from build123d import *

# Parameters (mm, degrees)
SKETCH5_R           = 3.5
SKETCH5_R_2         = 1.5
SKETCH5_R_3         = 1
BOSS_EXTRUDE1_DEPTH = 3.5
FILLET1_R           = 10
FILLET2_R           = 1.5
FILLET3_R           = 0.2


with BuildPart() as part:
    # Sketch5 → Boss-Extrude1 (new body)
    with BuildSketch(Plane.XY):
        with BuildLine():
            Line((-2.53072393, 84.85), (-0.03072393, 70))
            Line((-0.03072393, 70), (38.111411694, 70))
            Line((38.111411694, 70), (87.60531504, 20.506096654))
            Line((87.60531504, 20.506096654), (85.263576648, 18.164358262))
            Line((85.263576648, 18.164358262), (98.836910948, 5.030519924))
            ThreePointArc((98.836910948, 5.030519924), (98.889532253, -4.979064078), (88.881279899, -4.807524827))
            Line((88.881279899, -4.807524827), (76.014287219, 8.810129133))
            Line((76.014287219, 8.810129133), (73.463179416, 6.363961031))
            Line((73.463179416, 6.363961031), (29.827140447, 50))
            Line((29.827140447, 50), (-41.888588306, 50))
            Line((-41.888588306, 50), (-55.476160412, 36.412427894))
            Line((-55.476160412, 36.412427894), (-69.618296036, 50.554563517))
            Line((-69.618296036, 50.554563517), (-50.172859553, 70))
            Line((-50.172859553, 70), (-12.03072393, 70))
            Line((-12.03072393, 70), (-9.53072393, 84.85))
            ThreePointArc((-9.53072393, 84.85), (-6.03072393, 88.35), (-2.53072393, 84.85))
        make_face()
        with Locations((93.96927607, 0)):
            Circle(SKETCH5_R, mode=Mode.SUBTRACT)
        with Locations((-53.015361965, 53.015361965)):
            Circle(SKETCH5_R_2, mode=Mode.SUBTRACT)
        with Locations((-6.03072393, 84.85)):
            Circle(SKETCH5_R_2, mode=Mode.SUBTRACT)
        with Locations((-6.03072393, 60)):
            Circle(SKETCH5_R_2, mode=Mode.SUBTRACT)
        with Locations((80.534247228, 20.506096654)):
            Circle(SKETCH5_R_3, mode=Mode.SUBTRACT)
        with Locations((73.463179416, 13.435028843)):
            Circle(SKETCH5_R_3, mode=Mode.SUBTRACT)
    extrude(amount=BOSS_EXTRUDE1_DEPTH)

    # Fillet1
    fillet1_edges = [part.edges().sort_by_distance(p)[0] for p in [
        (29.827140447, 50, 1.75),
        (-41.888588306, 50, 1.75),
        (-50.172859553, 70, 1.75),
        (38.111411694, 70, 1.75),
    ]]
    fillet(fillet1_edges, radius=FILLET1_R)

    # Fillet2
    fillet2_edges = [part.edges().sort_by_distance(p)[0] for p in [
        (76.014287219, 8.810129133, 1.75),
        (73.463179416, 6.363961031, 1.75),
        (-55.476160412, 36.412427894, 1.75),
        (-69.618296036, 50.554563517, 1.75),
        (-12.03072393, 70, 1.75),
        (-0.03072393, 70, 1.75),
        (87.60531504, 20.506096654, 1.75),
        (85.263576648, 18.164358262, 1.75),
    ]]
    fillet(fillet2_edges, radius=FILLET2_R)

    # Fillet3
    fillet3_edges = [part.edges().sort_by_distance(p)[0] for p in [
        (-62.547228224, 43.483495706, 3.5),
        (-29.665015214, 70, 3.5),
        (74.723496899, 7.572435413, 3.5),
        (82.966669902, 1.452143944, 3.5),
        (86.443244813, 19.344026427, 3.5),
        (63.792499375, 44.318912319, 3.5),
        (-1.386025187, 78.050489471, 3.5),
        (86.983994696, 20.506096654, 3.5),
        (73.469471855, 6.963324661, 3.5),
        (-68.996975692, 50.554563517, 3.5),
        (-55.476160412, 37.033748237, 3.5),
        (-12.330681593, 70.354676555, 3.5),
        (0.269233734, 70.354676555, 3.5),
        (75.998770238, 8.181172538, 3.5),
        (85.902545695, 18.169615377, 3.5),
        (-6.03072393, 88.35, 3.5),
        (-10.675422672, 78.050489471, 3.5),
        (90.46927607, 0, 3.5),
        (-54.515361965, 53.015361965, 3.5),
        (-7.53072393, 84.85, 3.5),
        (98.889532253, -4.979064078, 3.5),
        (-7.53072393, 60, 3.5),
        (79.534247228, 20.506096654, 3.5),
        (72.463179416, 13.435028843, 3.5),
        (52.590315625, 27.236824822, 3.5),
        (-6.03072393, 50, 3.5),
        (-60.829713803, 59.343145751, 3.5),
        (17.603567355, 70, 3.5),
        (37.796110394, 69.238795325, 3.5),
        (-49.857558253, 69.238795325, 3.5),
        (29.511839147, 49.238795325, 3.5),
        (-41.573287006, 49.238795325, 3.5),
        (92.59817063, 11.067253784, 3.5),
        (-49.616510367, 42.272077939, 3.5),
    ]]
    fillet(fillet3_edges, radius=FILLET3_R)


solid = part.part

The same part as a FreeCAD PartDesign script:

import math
import FreeCAD as App
import Part
import Sketcher
Q = App.Units.Quantity


def edges_at(feature, points):
    """Names of the edges that pass closest to the given points."""
    edges = feature.Shape.Edges
    near = lambda p: min(range(len(edges)), key=lambda i: edges[i].distToShape(Part.Vertex(*p))[0])
    return sorted({f"Edge{near(p) + 1}" for p in points})

doc = App.newDocument("Part")
body = doc.addObject("PartDesign::Body", "Body")

sketch1 = body.newObject("Sketcher::SketchObject", "Sketch")
sketch1.AttachmentSupport = (doc.getObject("XY_Plane"), [""])
sketch1.MapMode = "FlatFace"
sketch1.addGeometry(Part.LineSegment(App.Vector(0, 70, 0), App.Vector(-2.5, 84.8, 0)), False)
sketch1.addGeometry(Part.ArcOfCircle(Part.Circle(App.Vector(-6, 84.8, 0), App.Vector(0, 0, 1), 3.5), math.radians(0), math.radians(180)), False)
sketch1.addGeometry(Part.LineSegment(App.Vector(-9.5, 84.8, 0), App.Vector(-12, 70, 0)), False)
sketch1.addGeometry(Part.LineSegment(App.Vector(-12, 70, 0), App.Vector(-50.2, 70, 0)), False)
sketch1.addGeometry(Part.LineSegment(App.Vector(-50.2, 70, 0), App.Vector(-69.6, 50.6, 0)), False)
sketch1.addGeometry(Part.LineSegment(App.Vector(-69.6, 50.6, 0), App.Vector(-55.5, 36.4, 0)), False)
sketch1.addGeometry(Part.LineSegment(App.Vector(-55.5, 36.4, 0), App.Vector(-41.9, 50, 0)), False)
sketch1.addGeometry(Part.LineSegment(App.Vector(-41.9, 50, 0), App.Vector(29.8, 50, 0)), False)
sketch1.addGeometry(Part.LineSegment(App.Vector(29.8, 50, 0), App.Vector(73.5, 6.4, 0)), False)
sketch1.addGeometry(Part.LineSegment(App.Vector(73.5, 6.4, 0), App.Vector(76, 8.8, 0)), False)
sketch1.addGeometry(Part.LineSegment(App.Vector(76, 8.8, 0), App.Vector(88.9, -4.8, 0)), False)
sketch1.addGeometry(Part.ArcOfCircle(Part.Circle(App.Vector(94, 0, 0), App.Vector(0, 0, 1), 7), math.radians(-137), math.radians(46)), False)
sketch1.addGeometry(Part.LineSegment(App.Vector(98.8, 5, 0), App.Vector(85.3, 18.2, 0)), False)
sketch1.addGeometry(Part.LineSegment(App.Vector(85.3, 18.2, 0), App.Vector(87.6, 20.5, 0)), False)
sketch1.addGeometry(Part.LineSegment(App.Vector(87.6, 20.5, 0), App.Vector(38.1, 70, 0)), False)
sketch1.addGeometry(Part.LineSegment(App.Vector(38.1, 70, 0), App.Vector(0, 70, 0)), False)
sketch1.addGeometry(Part.Circle(App.Vector(94, 0, 0), App.Vector(0, 0, 1), 3.5), False)
sketch1.addGeometry(Part.Circle(App.Vector(73.5, 13.4, 0), App.Vector(0, 0, 1), 1), False)
sketch1.addGeometry(Part.Circle(App.Vector(80.5, 20.5, 0), App.Vector(0, 0, 1), 1), False)
sketch1.addGeometry(Part.Circle(App.Vector(-6, 60, 0), App.Vector(0, 0, 1), 1.5), False)
sketch1.addGeometry(Part.Circle(App.Vector(-53, 53, 0), App.Vector(0, 0, 1), 1.5), False)
sketch1.addGeometry(Part.Circle(App.Vector(-6, 84.8, 0), App.Vector(0, 0, 1), 1.5), False)
sketch1.addConstraint(Sketcher.Constraint("Coincident", 0, 2, 1, 1))
sketch1.addConstraint(Sketcher.Constraint("Coincident", 1, 2, 2, 1))
sketch1.addConstraint(Sketcher.Constraint("Coincident", 2, 2, 3, 1))
sketch1.addConstraint(Sketcher.Constraint("Coincident", 3, 2, 4, 1))
sketch1.addConstraint(Sketcher.Constraint("Coincident", 4, 2, 5, 1))
sketch1.addConstraint(Sketcher.Constraint("Coincident", 5, 2, 6, 1))
sketch1.addConstraint(Sketcher.Constraint("Coincident", 6, 2, 7, 1))
sketch1.addConstraint(Sketcher.Constraint("Coincident", 7, 2, 8, 1))
sketch1.addConstraint(Sketcher.Constraint("Coincident", 8, 2, 9, 1))
sketch1.addConstraint(Sketcher.Constraint("Coincident", 9, 2, 10, 1))
sketch1.addConstraint(Sketcher.Constraint("Tangent", 10, 2, 11, 1))
sketch1.addConstraint(Sketcher.Constraint("Tangent", 11, 2, 12, 1))
sketch1.addConstraint(Sketcher.Constraint("Coincident", 12, 2, 13, 1))
sketch1.addConstraint(Sketcher.Constraint("Coincident", 13, 2, 14, 1))
sketch1.addConstraint(Sketcher.Constraint("Coincident", 14, 2, 15, 1))
sketch1.addConstraint(Sketcher.Constraint("Coincident", 15, 2, 0, 1))
sketch1.addConstraint(Sketcher.Constraint("Horizontal", 3))
sketch1.addConstraint(Sketcher.Constraint("Horizontal", 7))
sketch1.addConstraint(Sketcher.Constraint("Horizontal", 15))
sketch1.addConstraint(Sketcher.Constraint("Coincident", 16, 3, 11, 3))
sketch1.addConstraint(Sketcher.Constraint("Coincident", 21, 3, 1, 3))
sketch1.addConstraint(Sketcher.Constraint("Equal", 1, 16))
sketch1.addConstraint(Sketcher.Constraint("Equal", 17, 18))
sketch1.addConstraint(Sketcher.Constraint("Equal", 19, 20))
sketch1.addConstraint(Sketcher.Constraint("Equal", 20, 21))
sketch1.addConstraint(Sketcher.Constraint("PointOnObject", 11, 3, -1))
sketch1.addConstraint(Sketcher.Constraint("Perpendicular", 4, 5))
sketch1.addConstraint(Sketcher.Constraint("Perpendicular", 5, 6))
sketch1.addConstraint(Sketcher.Constraint("Perpendicular", 6, 8))
sketch1.addConstraint(Sketcher.Constraint("Perpendicular", 8, 13))
sketch1.addConstraint(Sketcher.Constraint("Perpendicular", 13, 14))
sketch1.addConstraint(Sketcher.Constraint("Horizontal", 21, 3, 0, 2))
sketch1.addConstraint(Sketcher.Constraint("Horizontal", 0, 2, 1, 2))
sketch1.addConstraint(Sketcher.Constraint("Horizontal", 18, 3, 13, 2))
sketch1.addConstraint(Sketcher.Constraint("Horizontal", 3, 2, 14, 2))
sketch1.addConstraint(Sketcher.Constraint("Vertical", 1, 3, 19, 3))
sketch1.addConstraint(Sketcher.Constraint("Vertical", 17, 3, 8, 2))
sketch1.addConstraint(Sketcher.Constraint("Equal", 3, 15))
sketch1.addConstraint(Sketcher.Constraint("Equal", 0, 2))
sketch1.addConstraint(Sketcher.Constraint("Diameter", 16, 7.0))
sketch1.addConstraint(Sketcher.Constraint("Diameter", 17, 2.0))
sketch1.addConstraint(Sketcher.Constraint("Diameter", 19, 3.0))
sketch1.addConstraint(Sketcher.Constraint("Radius", 11, 7.0))
sketch1.addConstraint(Sketcher.Constraint("Angle", 4, Q("-135 deg")))
sketch1.addConstraint(Sketcher.Constraint("Distance", 5, 20.0))
sketch1.addConstraint(Sketcher.Constraint("DistanceY", -1, 1, 19, 3, 60.0))
sketch1.addConstraint(Sketcher.Constraint("DistanceY", -1, 1, 2, 2, 70.0))
sketch1.addConstraint(Sketcher.Constraint("DistanceY", -1, 1, 6, 2, 50.0))
sketch1.addConstraint(Sketcher.Constraint("DistanceX", 1, 3, 11, 3, 100.0))
sketch1.addConstraint(Sketcher.Constraint("DistanceX", 2, 2, 19, 3, 6.0))
sketch1.addConstraint(Sketcher.Constraint("Distance", 4, 27.5))
sketch1.addConstraint(Sketcher.Constraint("DistanceY", -1, 1, 1, 3, 84.85))
sketch1.addConstraint(Sketcher.Constraint("DistanceX", 7, 1, 7, 2, 71.715729))
sketch1.addConstraint(Sketcher.Constraint("DistanceY", 4, 2, 20, 3, 2.460798))
sketch1.addConstraint(Sketcher.Constraint("DistanceX", 5, 2, 20, 3, 2.460798))
sketch1.addConstraint(Sketcher.Constraint("DistanceY", 9, 2, 17, 3, 4.6249))
sketch1.addConstraint(Sketcher.Constraint("DistanceX", 8, 2, 10, 2, 15.4181))
sketch1.addConstraint(Sketcher.Constraint("Distance", 8, 61.710678))
sketch1.addConstraint(Sketcher.Constraint("Distance", 12, 18.88738))
sketch1.addConstraint(Sketcher.Constraint("Distance", 13, 3.311718))
sketch1.addConstraint(Sketcher.Constraint("Distance", 14, 69.994949))
sketch1.addConstraint(Sketcher.Constraint("DistanceX", -1, 1, 17, 3, 73.463179))
sketch1.addConstraint(Sketcher.Constraint("DistanceY", -1, 1, 17, 3, 13.435029))
sketch1.addConstraint(Sketcher.Constraint("DistanceX", 18, 3, 11, 3, 13.435029))
pad1 = body.newObject("PartDesign::Pad", "Pad")
pad1.Profile = sketch1
pad1.Length = 3.5
doc.recompute()

fillet = body.newObject("PartDesign::Fillet", "Fillet")
fillet.Base = (pad1, edges_at(pad1, [
    (29.827, 50, 1.75),
    (-41.889, 50, 1.75),
    (-50.173, 70, 1.75),
    (38.111, 70, 1.75),
]))
fillet.Radius = 10
doc.recompute()

fillet2 = body.newObject("PartDesign::Fillet", "Fillet001")
fillet2.Base = (fillet, edges_at(fillet, [
    (76.014, 8.81, 1.75),
    (73.463, 6.364, 1.75),
    (-55.476, 36.412, 1.75),
    (-69.618, 50.555, 1.75),
    (-12.031, 70, 1.75),
    (-0.031, 70, 1.75),
    (87.605, 20.506, 1.75),
    (85.264, 18.164, 1.75),
]))
fillet2.Radius = 1.5
doc.recompute()

fillet3 = body.newObject("PartDesign::Fillet", "Fillet002")
fillet3.Base = (fillet2, edges_at(fillet2, [
    (-62.547, 43.483, 3.5),
    (-29.665, 70, 3.5),
    (74.723, 7.572, 3.5),
    (82.967, 1.452, 3.5),
    (86.443, 19.344, 3.5),
    (63.792, 44.319, 3.5),
    (-1.386, 78.05, 3.5),
    (86.984, 20.506, 3.5),
    (73.469, 6.963, 3.5),
    (-68.997, 50.555, 3.5),
    (-55.476, 37.034, 3.5),
    (-12.331, 70.355, 3.5),
    (0.269, 70.355, 3.5),
    (75.999, 8.181, 3.5),
    (85.903, 18.17, 3.5),
    (-6.031, 88.35, 3.5),
    (-10.675, 78.05, 3.5),
    (90.469, 0, 3.5),
    (-54.515, 53.015, 3.5),
    (-7.531, 84.85, 3.5),
    (98.89, -4.979, 3.5),
    (-7.531, 60, 3.5),
    (79.534, 20.506, 3.5),
    (72.463, 13.435, 3.5),
    (52.59, 27.237, 3.5),
    (-6.031, 50, 3.5),
    (-60.83, 59.343, 3.5),
    (17.604, 70, 3.5),
    (37.796, 69.239, 3.5),
    (-49.858, 69.239, 3.5),
    (29.512, 49.239, 3.5),
    (-41.573, 49.239, 3.5),
    (92.598, 11.067, 3.5),
    (-49.617, 42.272, 3.5),
]))
fillet3.Radius = 0.2

doc.recompute()
